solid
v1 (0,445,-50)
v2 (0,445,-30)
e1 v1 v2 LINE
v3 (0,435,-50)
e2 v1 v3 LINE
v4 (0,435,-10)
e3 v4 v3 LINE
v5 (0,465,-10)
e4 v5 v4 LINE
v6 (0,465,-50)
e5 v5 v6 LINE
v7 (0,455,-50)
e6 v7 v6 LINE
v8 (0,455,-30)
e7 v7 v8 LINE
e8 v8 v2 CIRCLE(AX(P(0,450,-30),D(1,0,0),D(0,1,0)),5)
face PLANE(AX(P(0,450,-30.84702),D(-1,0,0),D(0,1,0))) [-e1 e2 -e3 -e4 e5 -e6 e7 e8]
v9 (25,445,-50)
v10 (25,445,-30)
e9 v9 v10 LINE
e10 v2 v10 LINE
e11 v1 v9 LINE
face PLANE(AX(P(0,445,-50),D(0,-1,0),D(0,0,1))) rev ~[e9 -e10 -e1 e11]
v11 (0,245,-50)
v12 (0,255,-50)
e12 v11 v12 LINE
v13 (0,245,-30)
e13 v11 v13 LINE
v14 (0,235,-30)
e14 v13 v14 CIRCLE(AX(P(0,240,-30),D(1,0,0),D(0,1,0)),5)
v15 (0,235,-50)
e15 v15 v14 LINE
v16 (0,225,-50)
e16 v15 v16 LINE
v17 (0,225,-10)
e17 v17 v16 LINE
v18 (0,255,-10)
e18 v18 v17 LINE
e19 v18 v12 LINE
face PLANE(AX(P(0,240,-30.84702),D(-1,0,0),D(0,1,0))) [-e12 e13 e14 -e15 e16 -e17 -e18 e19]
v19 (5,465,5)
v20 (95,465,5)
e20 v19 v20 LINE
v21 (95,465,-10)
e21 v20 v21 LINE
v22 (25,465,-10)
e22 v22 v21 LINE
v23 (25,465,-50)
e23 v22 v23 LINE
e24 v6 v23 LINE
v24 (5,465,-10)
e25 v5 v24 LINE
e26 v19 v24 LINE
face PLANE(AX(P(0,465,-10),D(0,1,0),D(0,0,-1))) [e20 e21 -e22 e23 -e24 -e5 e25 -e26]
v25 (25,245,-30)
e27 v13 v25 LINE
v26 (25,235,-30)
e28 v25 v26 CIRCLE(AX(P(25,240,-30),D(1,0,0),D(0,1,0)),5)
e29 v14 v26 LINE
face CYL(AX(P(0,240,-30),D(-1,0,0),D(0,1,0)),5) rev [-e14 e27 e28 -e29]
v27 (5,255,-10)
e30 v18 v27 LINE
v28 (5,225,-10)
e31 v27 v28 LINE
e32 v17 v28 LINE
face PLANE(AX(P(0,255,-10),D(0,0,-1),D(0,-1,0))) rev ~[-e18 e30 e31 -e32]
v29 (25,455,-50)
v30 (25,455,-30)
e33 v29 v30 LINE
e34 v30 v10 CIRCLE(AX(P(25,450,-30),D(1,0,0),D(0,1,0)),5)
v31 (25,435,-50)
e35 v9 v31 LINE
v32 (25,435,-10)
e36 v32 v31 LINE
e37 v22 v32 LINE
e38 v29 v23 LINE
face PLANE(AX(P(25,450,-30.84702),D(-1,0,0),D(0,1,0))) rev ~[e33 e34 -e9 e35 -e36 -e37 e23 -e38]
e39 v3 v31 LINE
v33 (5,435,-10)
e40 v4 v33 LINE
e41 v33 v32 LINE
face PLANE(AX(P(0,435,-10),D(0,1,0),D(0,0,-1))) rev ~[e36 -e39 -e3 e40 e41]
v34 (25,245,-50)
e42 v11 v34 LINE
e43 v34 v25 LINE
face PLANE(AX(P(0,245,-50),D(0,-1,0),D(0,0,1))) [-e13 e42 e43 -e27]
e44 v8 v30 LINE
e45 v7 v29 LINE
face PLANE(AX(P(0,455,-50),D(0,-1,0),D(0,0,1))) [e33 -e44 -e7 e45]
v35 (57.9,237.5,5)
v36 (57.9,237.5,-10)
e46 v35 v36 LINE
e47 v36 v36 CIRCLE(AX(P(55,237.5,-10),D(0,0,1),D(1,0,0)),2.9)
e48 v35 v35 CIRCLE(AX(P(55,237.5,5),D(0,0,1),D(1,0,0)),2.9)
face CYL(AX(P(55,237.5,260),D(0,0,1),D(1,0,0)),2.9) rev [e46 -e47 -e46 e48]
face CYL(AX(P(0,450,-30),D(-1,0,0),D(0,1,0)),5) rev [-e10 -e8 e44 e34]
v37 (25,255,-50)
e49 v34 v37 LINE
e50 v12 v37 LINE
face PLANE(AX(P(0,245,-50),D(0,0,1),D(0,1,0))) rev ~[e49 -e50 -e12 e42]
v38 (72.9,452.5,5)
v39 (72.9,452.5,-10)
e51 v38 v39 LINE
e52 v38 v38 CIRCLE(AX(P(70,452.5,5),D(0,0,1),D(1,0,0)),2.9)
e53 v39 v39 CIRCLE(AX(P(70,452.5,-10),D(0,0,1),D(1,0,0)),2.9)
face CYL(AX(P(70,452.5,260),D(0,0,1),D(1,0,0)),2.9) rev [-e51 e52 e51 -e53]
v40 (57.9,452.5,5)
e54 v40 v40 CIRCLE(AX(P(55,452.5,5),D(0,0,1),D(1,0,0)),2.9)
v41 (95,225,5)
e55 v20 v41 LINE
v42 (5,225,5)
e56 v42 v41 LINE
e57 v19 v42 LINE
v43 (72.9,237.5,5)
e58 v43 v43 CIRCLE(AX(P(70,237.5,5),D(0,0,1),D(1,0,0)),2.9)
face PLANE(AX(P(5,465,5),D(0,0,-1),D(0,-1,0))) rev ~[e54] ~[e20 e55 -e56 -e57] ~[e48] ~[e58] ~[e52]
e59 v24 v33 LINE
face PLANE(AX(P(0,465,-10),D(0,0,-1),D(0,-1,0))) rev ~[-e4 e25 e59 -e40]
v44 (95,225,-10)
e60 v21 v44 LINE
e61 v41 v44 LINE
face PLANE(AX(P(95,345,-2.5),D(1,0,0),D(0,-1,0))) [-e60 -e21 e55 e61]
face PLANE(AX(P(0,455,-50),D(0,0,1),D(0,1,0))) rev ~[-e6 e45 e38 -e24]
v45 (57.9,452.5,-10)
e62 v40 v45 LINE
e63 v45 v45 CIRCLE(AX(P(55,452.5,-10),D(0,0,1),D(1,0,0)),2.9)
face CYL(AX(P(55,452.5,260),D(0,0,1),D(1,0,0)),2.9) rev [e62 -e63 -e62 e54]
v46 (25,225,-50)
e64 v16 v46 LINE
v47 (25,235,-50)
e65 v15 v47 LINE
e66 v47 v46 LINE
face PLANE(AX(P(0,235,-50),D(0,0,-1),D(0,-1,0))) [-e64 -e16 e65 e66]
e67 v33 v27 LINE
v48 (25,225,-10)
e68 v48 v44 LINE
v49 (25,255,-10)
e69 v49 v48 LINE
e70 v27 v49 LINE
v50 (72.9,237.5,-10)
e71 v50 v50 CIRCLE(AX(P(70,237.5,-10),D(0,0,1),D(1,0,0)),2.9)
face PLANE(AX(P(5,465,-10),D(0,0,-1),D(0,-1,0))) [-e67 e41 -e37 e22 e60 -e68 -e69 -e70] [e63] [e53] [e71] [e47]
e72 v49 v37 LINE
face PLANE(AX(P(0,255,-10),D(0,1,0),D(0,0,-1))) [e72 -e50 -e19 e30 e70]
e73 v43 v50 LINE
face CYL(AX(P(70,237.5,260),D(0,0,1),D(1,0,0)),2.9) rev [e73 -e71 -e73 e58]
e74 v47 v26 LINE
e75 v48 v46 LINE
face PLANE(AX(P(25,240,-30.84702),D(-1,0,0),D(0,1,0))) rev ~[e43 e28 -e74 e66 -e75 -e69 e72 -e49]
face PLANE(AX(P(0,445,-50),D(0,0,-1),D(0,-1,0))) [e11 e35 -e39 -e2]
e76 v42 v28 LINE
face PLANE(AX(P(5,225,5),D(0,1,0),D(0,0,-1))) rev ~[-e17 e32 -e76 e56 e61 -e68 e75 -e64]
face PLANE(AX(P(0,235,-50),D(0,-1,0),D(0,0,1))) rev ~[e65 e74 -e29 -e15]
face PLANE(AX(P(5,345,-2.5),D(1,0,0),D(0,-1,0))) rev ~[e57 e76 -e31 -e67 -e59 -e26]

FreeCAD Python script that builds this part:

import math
import FreeCAD as App
import Part
import Sketcher
Q = App.Units.Quantity


def add_polygon(sketch, points):
    """Adds a closed chain of lines whose ends are joined by coincident constraints."""
    first, n = sketch.GeometryCount, len(points)
    for a, b in zip(points, points[1:] + points[:1]):
        sketch.addGeometry(Part.LineSegment(App.Vector(*a, 0), App.Vector(*b, 0)), False)
    for i in range(n):
        sketch.addConstraint(Sketcher.Constraint("Coincident", first + i, 2, first + (i + 1) % n, 1))

doc = App.newDocument("Part")
body = doc.addObject("PartDesign::Body", "Body")

sketch1 = doc.addObject("Sketcher::SketchObject", "Sketch")
body.addObject(sketch1)
sketch1.AttachmentSupport = (doc.YZ_Plane, [""])
sketch1.MapMode = "FlatFace"
sketch1.AttachmentOffset = App.Placement(App.Vector(0, 0, 5), App.Rotation())
add_polygon(sketch1, [(-25, 270), (-25, 255), (215, 255), (215, 270)])
sketch1.addConstraint([
    Sketcher.Constraint("Vertical", 0),
    Sketcher.Constraint("Horizontal", 1),
    Sketcher.Constraint("Vertical", 2),
    Sketcher.Constraint("Horizontal", 3),
    Sketcher.Constraint("DistanceX", 1, 1, 1, 2, Q("240 mm")),
    Sketcher.Constraint("DistanceY", 0, 2, 0, 1, Q("15 mm")),
    Sketcher.Constraint("DistanceX", 0, 2, -1, 1, Q("25 mm")),
    Sketcher.Constraint("DistanceY", -1, 1, 0, 2, Q("255 mm")),
])
pad1 = doc.addObject("PartDesign::Pad", "Pad")
body.addObject(pad1)
pad1.Profile = sketch1
pad1.Length = 90

sketch2 = doc.addObject("Sketcher::SketchObject", "Sketch001")
body.addObject(sketch2)
sketch2.AttachmentSupport = (doc.XY_Plane, [""])
sketch2.MapMode = "FlatFace"
sketch2.addGeometry([
    Part.Circle(App.Vector(55, 202.5, 0), App.Vector(0, 0, 1), 2.9),
    Part.Circle(App.Vector(70, 202.5, 0), App.Vector(0, 0, 1), 2.9),
    Part.Circle(App.Vector(55, -12.5, 0), App.Vector(0, 0, 1), 2.9),
    Part.Circle(App.Vector(70, -12.5, 0), App.Vector(0, 0, 1), 2.9),
], False)
sketch2.addConstraint([
    Sketcher.Constraint("Equal", 0, 1),
    Sketcher.Constraint("Equal", 1, 2),
    Sketcher.Constraint("Equal", 2, 3),
    Sketcher.Constraint("Horizontal", 0, 3, 1, 3),
    Sketcher.Constraint("Horizontal", 2, 3, 3, 3),
    Sketcher.Constraint("Vertical", 0, 3, 2, 3),
    Sketcher.Constraint("Vertical", 1, 3, 3, 3),
    Sketcher.Constraint("Diameter", 0, Q("5.8 mm")),
    Sketcher.Constraint("DistanceX", -1, 1, 0, 3, Q("55 mm")),
    Sketcher.Constraint("DistanceX", -1, 1, 1, 3, Q("70 mm")),
    Sketcher.Constraint("DistanceY", 2, 3, 0, 3, Q("215 mm")),
    Sketcher.Constraint("DistanceY", -1, 1, 0, 3, Q("202.5 mm")),
])
pocket1 = doc.addObject("PartDesign::Pocket", "Pocket")
body.addObject(pocket1)
pocket1.Profile = sketch2
pocket1.Type = "ThroughAll"
pocket1.Reversed = True

sketch3 = doc.addObject("Sketcher::SketchObject", "Sketch002")
body.addObject(sketch3)
sketch3.AttachmentSupport = (doc.YZ_Plane, [""])
sketch3.MapMode = "FlatFace"
sketch3.addGeometry([
    Part.LineSegment(App.Vector(-25, 310, 0), App.Vector(-25, 270, 0)),
    Part.LineSegment(App.Vector(-25, 270, 0), App.Vector(5, 270, 0)),
    Part.LineSegment(App.Vector(5, 270, 0), App.Vector(5, 310, 0)),
    Part.LineSegment(App.Vector(5, 310, 0), App.Vector(-5, 310, 0)),
    Part.LineSegment(App.Vector(-5, 310, 0), App.Vector(-5, 290, 0)),
    Part.ArcOfCircle(Part.Circle(App.Vector(-10, 290, 0), App.Vector(0, 0, 1), 5), math.radians(180), math.radians(360)),
    Part.LineSegment(App.Vector(-15, 290, 0), App.Vector(-15, 310, 0)),
    Part.LineSegment(App.Vector(-15, 310, 0), App.Vector(-25, 310, 0)),
    Part.LineSegment(App.Vector(185, 310, 0), App.Vector(185, 270, 0)),
    Part.LineSegment(App.Vector(185, 270, 0), App.Vector(215, 270, 0)),
    Part.LineSegment(App.Vector(215, 270, 0), App.Vector(215, 310, 0)),
    Part.LineSegment(App.Vector(215, 310, 0), App.Vector(205, 310, 0)),
    Part.LineSegment(App.Vector(205, 310, 0), App.Vector(205, 290, 0)),
    Part.ArcOfCircle(Part.Circle(App.Vector(200, 290, 0), App.Vector(0, 0, 1), 5), math.radians(180), math.radians(360)),
    Part.LineSegment(App.Vector(195, 290, 0), App.Vector(195, 310, 0)),
    Part.LineSegment(App.Vector(195, 310, 0), App.Vector(185, 310, 0)),
], False)
sketch3.addConstraint([
    Sketcher.Constraint("Coincident", 0, 2, 1, 1),
    Sketcher.Constraint("Coincident", 1, 2, 2, 1),
    Sketcher.Constraint("Coincident", 2, 2, 3, 1),
    Sketcher.Constraint("Coincident", 3, 2, 4, 1),
    Sketcher.Constraint("Tangent", 4, 2, 5, 2),
    Sketcher.Constraint("Tangent", 5, 1, 6, 1),
    Sketcher.Constraint("Coincident", 6, 2, 7, 1),
    Sketcher.Constraint("Coincident", 7, 2, 0, 1),
    Sketcher.Constraint("Coincident", 8, 2, 9, 1),
    Sketcher.Constraint("Coincident", 9, 2, 10, 1),
    Sketcher.Constraint("Coincident", 10, 2, 11, 1),
    Sketcher.Constraint("Coincident", 11, 2, 12, 1),
    Sketcher.Constraint("Tangent", 12, 2, 13, 2),
    Sketcher.Constraint("Tangent", 13, 1, 14, 1),
    Sketcher.Constraint("Coincident", 14, 2, 15, 1),
    Sketcher.Constraint("Coincident", 15, 2, 8, 1),
    Sketcher.Constraint("Vertical", 0),
    Sketcher.Constraint("Horizontal", 1),
    Sketcher.Constraint("Vertical", 2),
    Sketcher.Constraint("Horizontal", 3),
    Sketcher.Constraint("Vertical", 4),
    Sketcher.Constraint("Vertical", 6),
    Sketcher.Constraint("Horizontal", 7),
    Sketcher.Constraint("Vertical", 8),
    Sketcher.Constraint("Horizontal", 9),
    Sketcher.Constraint("Vertical", 10),
    Sketcher.Constraint("Horizontal", 11),
    Sketcher.Constraint("Vertical", 12),
    Sketcher.Constraint("Vertical", 14),
    Sketcher.Constraint("Horizontal", 15),
    Sketcher.Constraint("Equal", 5, 13),
    Sketcher.Constraint("Horizontal", 5, 3, 13, 3),
    Sketcher.Constraint("Horizontal", 3, 2, 6, 2),
    Sketcher.Constraint("Horizontal", 1, 2, 8, 2),
    Sketcher.Constraint("Horizontal", 7, 2, 10, 2),
    Sketcher.Constraint("Horizontal", 11, 2, 14, 2),
    Sketcher.Constraint("Equal", 3, 7),
    Sketcher.Constraint("Equal", 1, 9),
    Sketcher.Constraint("Equal", 7, 11),
    Sketcher.Constraint("Radius", 5, Q("5 mm")),
    Sketcher.Constraint("DistanceX", 1, 1, 1, 2, Q("30 mm")),
    Sketcher.Constraint("DistanceY", 0, 2, 0, 1, Q("40 mm")),
    Sketcher.Constraint("DistanceY", 4, 2, 4, 1, Q("20 mm")),
    Sketcher.Constraint("DistanceX", 5, 3, -1, 1, Q("10 mm")),
    Sketcher.Constraint("DistanceY", -1, 1, 5, 3, Q("290 mm")),
    Sketcher.Constraint("DistanceX", -1, 1, 13, 3, Q("200 mm")),
])
pad2 = doc.addObject("PartDesign::Pad", "Pad001")
body.addObject(pad2)
pad2.Profile = sketch3
pad2.Length = 25
body2 = doc.addObject("PartDesign::Body", "Body001")
doc.recompute()

body.Placement = App.Placement(App.Vector(0, 190, 260), App.Rotation(App.Vector(1, 0, 0), 180))
boolean = doc.addObject("PartDesign::Boolean", "Boolean")
body2.addObject(boolean)
boolean.Type = "Fuse"
boolean.addObjects([body])
body3 = doc.addObject("PartDesign::Body", "Body002")
doc.recompute()

body2.Placement = App.Placement(App.Vector(0, 250, 0), App.Rotation(App.Vector(0, 0, 1), 0))
boolean2 = doc.addObject("PartDesign::Boolean", "Boolean001")
body3.addObject(boolean2)
boolean2.Type = "Fuse"
boolean2.addObjects([body2])

doc.recompute()
